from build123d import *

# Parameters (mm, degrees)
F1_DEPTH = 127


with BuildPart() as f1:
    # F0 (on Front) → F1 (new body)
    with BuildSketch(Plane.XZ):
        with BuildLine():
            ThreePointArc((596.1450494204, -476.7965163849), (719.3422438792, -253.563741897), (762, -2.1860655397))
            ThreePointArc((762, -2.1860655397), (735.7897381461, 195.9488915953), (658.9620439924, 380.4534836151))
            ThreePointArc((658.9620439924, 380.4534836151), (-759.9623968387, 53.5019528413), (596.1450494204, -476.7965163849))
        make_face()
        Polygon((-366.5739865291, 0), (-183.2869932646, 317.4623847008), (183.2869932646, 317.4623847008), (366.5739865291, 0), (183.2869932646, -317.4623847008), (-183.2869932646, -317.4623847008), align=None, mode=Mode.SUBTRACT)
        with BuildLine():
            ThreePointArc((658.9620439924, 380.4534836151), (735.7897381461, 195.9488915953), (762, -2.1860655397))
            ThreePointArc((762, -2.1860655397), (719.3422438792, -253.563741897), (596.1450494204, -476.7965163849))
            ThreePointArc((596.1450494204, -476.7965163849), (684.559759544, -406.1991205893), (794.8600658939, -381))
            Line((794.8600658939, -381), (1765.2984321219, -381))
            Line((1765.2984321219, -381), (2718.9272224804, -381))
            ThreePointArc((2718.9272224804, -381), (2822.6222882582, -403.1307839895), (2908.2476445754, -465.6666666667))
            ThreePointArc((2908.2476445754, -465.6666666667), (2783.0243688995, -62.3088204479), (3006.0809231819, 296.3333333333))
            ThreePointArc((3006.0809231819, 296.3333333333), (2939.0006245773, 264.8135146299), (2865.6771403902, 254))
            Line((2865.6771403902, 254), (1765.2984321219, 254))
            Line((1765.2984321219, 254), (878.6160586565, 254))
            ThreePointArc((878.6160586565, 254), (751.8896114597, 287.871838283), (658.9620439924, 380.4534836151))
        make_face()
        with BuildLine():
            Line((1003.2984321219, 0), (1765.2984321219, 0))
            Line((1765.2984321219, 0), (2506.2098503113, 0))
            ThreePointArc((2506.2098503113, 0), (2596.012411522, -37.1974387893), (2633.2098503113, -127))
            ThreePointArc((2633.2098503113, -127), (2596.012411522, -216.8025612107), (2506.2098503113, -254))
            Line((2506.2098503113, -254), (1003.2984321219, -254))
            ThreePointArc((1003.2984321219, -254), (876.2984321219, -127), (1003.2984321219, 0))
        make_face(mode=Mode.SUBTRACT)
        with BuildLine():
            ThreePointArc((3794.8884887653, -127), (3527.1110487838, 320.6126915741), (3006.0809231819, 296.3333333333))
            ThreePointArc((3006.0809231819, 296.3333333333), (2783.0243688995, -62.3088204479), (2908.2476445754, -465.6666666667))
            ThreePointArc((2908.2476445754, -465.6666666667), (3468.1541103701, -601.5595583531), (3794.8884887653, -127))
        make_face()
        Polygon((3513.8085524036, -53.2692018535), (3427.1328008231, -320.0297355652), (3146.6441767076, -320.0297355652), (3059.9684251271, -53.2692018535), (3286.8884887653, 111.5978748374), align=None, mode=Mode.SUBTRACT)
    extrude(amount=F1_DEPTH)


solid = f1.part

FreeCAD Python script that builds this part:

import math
import FreeCAD as App
import Part
import Sketcher

V = App.Vector
Q = App.Units.Quantity


def add_polygon(sketch, points):
    """Adds a closed chain of lines whose ends are joined by coincident constraints."""
    first, n = sketch.GeometryCount, len(points)
    for a, b in zip(points, points[1:] + points[:1]):
        sketch.addGeometry(Part.LineSegment(App.Vector(*a, 0), App.Vector(*b, 0)), False)
    for i in range(n):
        sketch.addConstraint(Sketcher.Constraint("Coincident", first + i, 2, first + (i + 1) % n, 1))

doc = App.newDocument("Part")
body = doc.addObject("PartDesign::Body", "Body")

# Sketch on XZ plane
sketch1 = body.newObject("Sketcher::SketchObject", "Sketch")
sketch1.AttachmentSupport = (doc.getObject("XZ_Plane"), [""])
sketch1.MapMode = "FlatFace"
sketch1.addGeometry(Part.ArcOfCircle(Part.Circle(V(0, -2.186066, 0), V(0, 0, 1), 762), math.radians(30.142454), math.radians(321.475563)), False)  # 0
sketch1.addGeometry(Part.ArcOfCircle(Part.Circle(V(794.860066, -635, 0), V(0, 0, 1), 254), math.radians(90), math.radians(141.475563)), False)  # 1
sketch1.addGeometry(Part.LineSegment(V(794.860066, -381, 0), V(2718.927222, -381, 0)), False)  # 2
sketch1.addGeometry(Part.ArcOfCircle(Part.Circle(V(2718.927222, -635, 0), V(0, 0, 1), 254), math.radians(41.810315), math.radians(90)), False)  # 3
sketch1.addGeometry(Part.ArcOfCircle(Part.Circle(V(3286.888489, -127, 0), V(0, 0, 1), 508), math.radians(-138.189685), math.radians(123.55731)), False)  # 4
sketch1.addGeometry(Part.ArcOfCircle(Part.Circle(V(2865.67714, 508, 0), V(0, 0, 1), 254), math.radians(-90), math.radians(-56.44269)), False)  # 5
sketch1.addGeometry(Part.LineSegment(V(2865.67714, 254, 0), V(878.616059, 254, 0)), False)  # 6
sketch1.addGeometry(Part.ArcOfCircle(Part.Circle(V(878.616059, 508, 0), V(0, 0, 1), 254), math.radians(-149.857546), math.radians(-90)), False)  # 7
sketch1.addGeometry(Part.ArcOfCircle(Part.Circle(V(1003.298432, -127, 0), V(0, 0, 1), 127), math.radians(90), math.radians(270)), False)  # 8
sketch1.addGeometry(Part.LineSegment(V(1003.298432, 0, 0), V(2506.20985, 0, 0)), False)  # 9
sketch1.addGeometry(Part.ArcOfCircle(Part.Circle(V(2506.20985, -127, 0), V(0, 0, 1), 127), math.radians(-90), math.radians(90)), False)  # 10
sketch1.addGeometry(Part.LineSegment(V(2506.20985, -254, 0), V(1003.298432, -254, 0)), False)  # 11
add_polygon(sketch1, [(3286.888489, 111.597875), (3513.808552, -53.269202), (3427.132801, -320.029736), (3146.644177, -320.029736), (3059.968425, -53.269202)])  # lines 12-16
add_polygon(sketch1, [(-183.286993, -317.462385), (-366.573987, 0), (-183.286993, 317.462385), (183.286993, 317.462385), (366.573987, 0), (183.286993, -317.462385)])  # lines 17-22
sketch1.addConstraint([
    Sketcher.Constraint("Tangent", 0, 2, 1, 2),
    Sketcher.Constraint("Tangent", 1, 1, 2, 1),
    Sketcher.Constraint("Tangent", 2, 2, 3, 2),
    Sketcher.Constraint("Tangent", 3, 1, 4, 1),
    Sketcher.Constraint("Tangent", 4, 2, 5, 2),
    Sketcher.Constraint("Tangent", 5, 1, 6, 1),
    Sketcher.Constraint("Tangent", 6, 2, 7, 2),
    Sketcher.Constraint("Tangent", 7, 1, 0, 1),
    Sketcher.Constraint("Tangent", 8, 1, 9, 1),
    Sketcher.Constraint("Tangent", 9, 2, 10, 2),
    Sketcher.Constraint("Tangent", 10, 1, 11, 1),
    Sketcher.Constraint("Tangent", 11, 2, 8, 2),
    Sketcher.Constraint("Horizontal", 2),
    Sketcher.Constraint("Horizontal", 6),
    Sketcher.Constraint("Horizontal", 9),
    Sketcher.Constraint("Horizontal", 11),
    Sketcher.Constraint("Horizontal", 14),
    Sketcher.Constraint("Horizontal", 19),
    Sketcher.Constraint("Horizontal", 22),
    Sketcher.Constraint("Equal", 1, 3),
    Sketcher.Constraint("Equal", 3, 5),
    Sketcher.Constraint("Equal", 5, 7),
    Sketcher.Constraint("Symmetric", 17, 2, 20, 2, -1, 1),
    Sketcher.Constraint("Symmetric", 18, 2, 21, 2, -1, 1),
    Sketcher.Constraint("PointOnObject", 0, 3, -2),
    Sketcher.Constraint("PointOnObject", 8, 1, -1),
    Sketcher.Constraint("PointOnObject", 17, 2, -1),
    Sketcher.Constraint("Parallel", 17, 20),
    Sketcher.Constraint("Horizontal", 4, 3, 8, 3),
    Sketcher.Constraint("Horizontal", 12, 2, 15, 2),
    Sketcher.Constraint("Vertical", 4, 3, 16, 2),
    Sketcher.Constraint("Vertical", 19, 2, 21, 2),
    Sketcher.Constraint("Equal", 12, 13),
    Sketcher.Constraint("Equal", 13, 15),
    Sketcher.Constraint("Equal", 15, 16),
    Sketcher.Constraint("Radius", 0, Q("30 in")),
    Sketcher.Constraint("Radius", 1, Q("10 in")),
    Sketcher.Constraint("Radius", 4, Q("20 in")),
    Sketcher.Constraint("Radius", 8, Q("5 in")),
    Sketcher.Constraint("DistanceY", 1, 3, -1, 1, Q("25 in")),
    Sketcher.Constraint("DistanceY", -1, 1, 5, 3, Q("20 in")),
    Sketcher.Constraint("Angle", 12, Q("-36 deg")),
    Sketcher.Constraint("Angle", 13, Q("-108 deg")),
    Sketcher.Constraint("Angle", 17, Q("120 deg")),
    Sketcher.Constraint("DistanceX", 6, 2, 6, 1, Q("1987.061082 mm")),
    Sketcher.Constraint("DistanceX", 9, 1, 9, 2, Q("1502.911418 mm")),
    Sketcher.Constraint("DistanceY", 12, 2, -1, 1, Q("53.269202 mm")),
    Sketcher.Constraint("DistanceX", -1, 1, 13, 2, Q("3427.132801 mm")),
    Sketcher.Constraint("DistanceX", 2, 1, 2, 2, Q("1924.067157 mm")),
    Sketcher.Constraint("DistanceX", 19, 1, 19, 2, Q("366.573987 mm")),
    Sketcher.Constraint("DistanceX", -1, 1, 10, 3, Q("2506.20985 mm")),
    Sketcher.Constraint("DistanceY", 0, 3, 18, 2, Q("319.64845 mm")),
])
pad1 = body.newObject("PartDesign::Pad", "Pad")
pad1.Profile = sketch1
pad1.Length = Q("5 in")

doc.recompute()
